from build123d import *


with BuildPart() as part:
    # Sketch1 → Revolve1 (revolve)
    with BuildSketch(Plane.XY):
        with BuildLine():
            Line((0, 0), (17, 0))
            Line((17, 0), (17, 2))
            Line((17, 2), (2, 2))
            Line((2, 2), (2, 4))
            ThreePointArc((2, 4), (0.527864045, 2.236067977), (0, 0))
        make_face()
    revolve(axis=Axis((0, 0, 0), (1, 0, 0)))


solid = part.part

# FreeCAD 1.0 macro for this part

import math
import FreeCAD as App
import Part
import Sketcher

V = App.Vector

doc = App.newDocument("Part")
body = doc.addObject("PartDesign::Body", "Body")

sketch1 = body.newObject("Sketcher::SketchObject", "Sketch")
sketch1.AttachmentSupport = (doc.getObject("XY_Plane"), [""])
sketch1.MapMode = "FlatFace"
sketch1.addGeometry([
    Part.LineSegment(V(0, 0, 0), V(17, 0, 0)),
    Part.LineSegment(V(17, 0, 0), V(17, 2, 0)),
    Part.LineSegment(V(17, 2, 0), V(2, 2, 0)),
    Part.LineSegment(V(2, 2, 0), V(2, 4, 0)),
    Part.ArcOfCircle(Part.Circle(V(5, 0, 0), V(0, 0, 1), 5), math.radians(127), math.radians(180)),
], False)
sketch1.addConstraint([
    Sketcher.Constraint("Coincident", 0, 2, 1, 1),
    Sketcher.Constraint("Coincident", 1, 2, 2, 1),
    Sketcher.Constraint("Coincident", 2, 2, 3, 1),
    Sketcher.Constraint("Coincident", 3, 2, 4, 1),
    Sketcher.Constraint("Coincident", 4, 2, 0, 1),
    Sketcher.Constraint("Horizontal", 0),
    Sketcher.Constraint("Vertical", 1),
    Sketcher.Constraint("Horizontal", 2),
    Sketcher.Constraint("Vertical", 3),
    Sketcher.Constraint("Coincident", 4, 2, -1, 1),
    Sketcher.Constraint("PointOnObject", 4, 3, -1),
    Sketcher.Constraint("Equal", 1, 3),
    Sketcher.Constraint("Radius", 4, 5.0),
    Sketcher.Constraint("DistanceX", 0, 1, 0, 2, 17.0),
    Sketcher.Constraint("DistanceX", 2, 2, 2, 1, 15.0),
])
revolution = body.newObject("PartDesign::Revolution", "Revolution")
revolution.Profile = sketch1
revolution.ReferenceAxis = (sketch1, ["H_Axis"])
revolution.Angle = 360

doc.recompute()
